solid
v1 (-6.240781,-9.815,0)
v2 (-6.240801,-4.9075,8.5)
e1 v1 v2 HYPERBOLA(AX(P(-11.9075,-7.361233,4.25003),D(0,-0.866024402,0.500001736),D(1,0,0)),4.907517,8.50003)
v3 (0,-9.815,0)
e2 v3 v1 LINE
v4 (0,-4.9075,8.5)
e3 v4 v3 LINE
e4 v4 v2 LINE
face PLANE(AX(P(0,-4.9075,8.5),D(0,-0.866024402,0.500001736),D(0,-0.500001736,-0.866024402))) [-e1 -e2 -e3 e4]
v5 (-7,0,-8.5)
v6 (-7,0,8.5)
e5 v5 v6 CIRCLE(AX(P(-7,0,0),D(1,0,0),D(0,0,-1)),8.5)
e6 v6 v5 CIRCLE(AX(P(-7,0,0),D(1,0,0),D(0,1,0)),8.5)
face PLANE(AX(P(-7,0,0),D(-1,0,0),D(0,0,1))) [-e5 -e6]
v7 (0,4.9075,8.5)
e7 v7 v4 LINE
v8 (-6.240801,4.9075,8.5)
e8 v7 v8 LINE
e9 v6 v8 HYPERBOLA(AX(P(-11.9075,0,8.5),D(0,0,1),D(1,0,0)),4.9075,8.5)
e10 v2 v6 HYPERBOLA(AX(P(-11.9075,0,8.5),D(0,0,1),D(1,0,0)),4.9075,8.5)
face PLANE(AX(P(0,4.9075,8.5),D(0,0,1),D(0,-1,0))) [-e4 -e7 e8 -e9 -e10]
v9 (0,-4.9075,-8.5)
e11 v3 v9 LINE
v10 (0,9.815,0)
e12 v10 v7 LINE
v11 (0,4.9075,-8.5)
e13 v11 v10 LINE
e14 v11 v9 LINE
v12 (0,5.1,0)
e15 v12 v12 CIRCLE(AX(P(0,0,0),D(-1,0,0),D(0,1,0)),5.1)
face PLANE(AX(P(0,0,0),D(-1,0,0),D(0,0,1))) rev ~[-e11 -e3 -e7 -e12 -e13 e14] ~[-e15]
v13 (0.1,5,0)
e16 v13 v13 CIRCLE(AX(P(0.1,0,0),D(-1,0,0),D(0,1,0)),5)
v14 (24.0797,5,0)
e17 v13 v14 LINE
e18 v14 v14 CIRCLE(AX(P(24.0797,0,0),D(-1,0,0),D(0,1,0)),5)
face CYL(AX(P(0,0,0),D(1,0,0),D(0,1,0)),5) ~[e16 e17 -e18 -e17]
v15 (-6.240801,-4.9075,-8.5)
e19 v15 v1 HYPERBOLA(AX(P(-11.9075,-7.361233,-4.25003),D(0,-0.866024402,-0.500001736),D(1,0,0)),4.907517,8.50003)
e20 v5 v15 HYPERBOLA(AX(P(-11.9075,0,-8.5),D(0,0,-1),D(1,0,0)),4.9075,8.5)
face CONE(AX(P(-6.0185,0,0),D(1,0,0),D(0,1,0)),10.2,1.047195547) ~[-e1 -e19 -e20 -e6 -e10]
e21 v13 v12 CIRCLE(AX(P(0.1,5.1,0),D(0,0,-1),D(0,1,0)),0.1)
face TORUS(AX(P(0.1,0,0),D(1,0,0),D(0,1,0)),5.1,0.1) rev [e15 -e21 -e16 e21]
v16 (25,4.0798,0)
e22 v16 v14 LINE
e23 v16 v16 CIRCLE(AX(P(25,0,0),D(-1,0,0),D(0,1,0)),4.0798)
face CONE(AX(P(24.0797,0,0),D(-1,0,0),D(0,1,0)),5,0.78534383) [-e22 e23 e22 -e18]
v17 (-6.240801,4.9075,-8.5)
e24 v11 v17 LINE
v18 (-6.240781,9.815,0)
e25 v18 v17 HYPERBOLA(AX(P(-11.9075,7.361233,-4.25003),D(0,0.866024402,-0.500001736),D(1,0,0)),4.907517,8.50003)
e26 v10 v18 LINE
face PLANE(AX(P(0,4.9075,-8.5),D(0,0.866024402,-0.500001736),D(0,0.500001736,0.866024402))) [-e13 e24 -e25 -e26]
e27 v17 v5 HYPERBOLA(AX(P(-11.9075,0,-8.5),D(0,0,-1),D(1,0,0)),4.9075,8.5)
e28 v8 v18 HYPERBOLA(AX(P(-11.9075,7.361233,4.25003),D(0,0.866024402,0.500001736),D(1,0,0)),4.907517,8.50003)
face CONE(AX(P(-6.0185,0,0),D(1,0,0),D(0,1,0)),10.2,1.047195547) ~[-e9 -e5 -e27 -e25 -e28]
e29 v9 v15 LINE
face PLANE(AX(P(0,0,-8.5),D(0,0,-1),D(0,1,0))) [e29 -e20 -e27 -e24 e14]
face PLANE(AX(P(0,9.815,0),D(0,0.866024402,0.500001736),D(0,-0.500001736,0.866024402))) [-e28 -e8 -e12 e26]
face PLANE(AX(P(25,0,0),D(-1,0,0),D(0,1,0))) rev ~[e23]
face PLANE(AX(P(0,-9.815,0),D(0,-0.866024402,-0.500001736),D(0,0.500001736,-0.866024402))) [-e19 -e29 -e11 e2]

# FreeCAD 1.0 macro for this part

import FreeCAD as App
import Part
import Sketcher
from FreeCAD import Vector
Q = App.Units.Quantity


def edges_at(feature, points):
    """Names of the edges that pass closest to the given points."""
    edges = feature.Shape.Edges
    near = lambda p: min(range(len(edges)), key=lambda i: edges[i].distToShape(Part.Vertex(*p))[0])
    return sorted({f"Edge{near(p) + 1}" for p in points})


def add_polygon(sketch, points):
    """Adds a closed chain of lines whose ends are joined by coincident constraints."""
    first, n = sketch.GeometryCount, len(points)
    for a, b in zip(points, points[1:] + points[:1]):
        sketch.addGeometry(Part.LineSegment(App.Vector(*a, 0), App.Vector(*b, 0)), False)
    for i in range(n):
        sketch.addConstraint(Sketcher.Constraint("Coincident", first + i, 2, first + (i + 1) % n, 1))

doc = App.newDocument("Part")
body = doc.addObject("PartDesign::Body", "Body")

sketch1 = body.newObject("Sketcher::SketchObject", "Sketch")
sketch1.AttachmentSupport = (doc.getObject("XY_Plane"), [""])
sketch1.MapMode = "FlatFace"
add_polygon(sketch1, [(25, 5), (0, 5), (0, 0), (25, 0)])
sketch1.addConstraint(Sketcher.Constraint("Horizontal", 0))
sketch1.addConstraint(Sketcher.Constraint("Vertical", 1))
sketch1.addConstraint(Sketcher.Constraint("Horizontal", 2))
sketch1.addConstraint(Sketcher.Constraint("Vertical", 3))
sketch1.addConstraint(Sketcher.Constraint("Coincident", 1, 2, -1, 1))
sketch1.addConstraint(Sketcher.Constraint("DistanceX", 0, 2, 0, 1, Q("25 mm")))
sketch1.addConstraint(Sketcher.Constraint("DistanceY", 1, 2, 1, 1, Q("5 mm")))
revolution = body.newObject("PartDesign::Revolution", "Revolution")
revolution.Profile = sketch1
revolution.ReferenceAxis = (sketch1, ["H_Axis"])
revolution.Angle = 360

sketch2 = body.newObject("Sketcher::SketchObject", "Sketch001")
sketch2.AttachmentSupport = (doc.getObject("YZ_Plane"), [""])
sketch2.MapMode = "FlatFace"
add_polygon(sketch2, [(5, -8), (-5, -8), (-10, 0), (-5, 8), (5, 8), (10, 0)])
sketch2.addConstraint(Sketcher.Constraint("Horizontal", 0))
sketch2.addConstraint(Sketcher.Constraint("Horizontal", 3))
sketch2.addConstraint(Sketcher.Constraint("Symmetric", 0, 2, 3, 2, -1, 1))
sketch2.addConstraint(Sketcher.Constraint("Symmetric", 1, 2, 4, 2, -1, 1))
sketch2.addConstraint(Sketcher.Constraint("PointOnObject", 1, 2, -1))
sketch2.addConstraint(Sketcher.Constraint("Parallel", 2, 5))
sketch2.addConstraint(Sketcher.Constraint("Vertical", 0, 2, 2, 2))
sketch2.addConstraint(Sketcher.Constraint("DistanceY", 0, 2, 2, 2, Q("17 mm")))
sketch2.addConstraint(Sketcher.Constraint("Angle", 1, Q("120 deg")))
sketch2.addConstraint(Sketcher.Constraint("DistanceX", 0, 2, 0, 1, Q("9.815 mm")))
pad1 = body.newObject("PartDesign::Pad", "Pad")
pad1.Profile = sketch2
pad1.Length = 7
pad1.Reversed = True

sketch3 = body.newObject("Sketcher::SketchObject", "Sketch002")
sketch3.AttachmentSupport = (doc.getObject("XY_Plane"), [""])
sketch3.MapMode = "FlatFace"
add_polygon(sketch3, [(-7, 8.5), (-6, 10.2), (-7, 10.2)])
sketch3.addConstraint(Sketcher.Constraint("Horizontal", 1))
sketch3.addConstraint(Sketcher.Constraint("Vertical", 2))
sketch3.addConstraint(Sketcher.Constraint("DistanceX", 1, 2, -1, 1, Q("7 mm")))
sketch3.addConstraint(Sketcher.Constraint("Angle", 0, Q("60 deg")))
sketch3.addConstraint(Sketcher.Constraint("DistanceY", 2, 2, 2, 1, Q("1.7 mm")))
sketch3.addConstraint(Sketcher.Constraint("DistanceY", -1, 1, 0, 2, Q("10.2 mm")))
groove = body.newObject("PartDesign::Groove", "Groove")
groove.Profile = sketch3
groove.ReferenceAxis = (sketch3, ["H_Axis"])
groove.Angle = 360
doc.recompute()

chamfer = body.newObject("PartDesign::Chamfer", "Chamfer")
chamfer.Base = (groove, edges_at(groove, [(25, -5, 0)]))
chamfer.ChamferType = "Two distances"
chamfer.Size = 0.9202
chamfer.Size2 = 0.9203
doc.recompute()

fillet = body.newObject("PartDesign::Fillet", "Fillet")
fillet.Base = (chamfer, edges_at(chamfer, [(0, -5, 0)]))
fillet.Radius = 0.1

doc.recompute()
